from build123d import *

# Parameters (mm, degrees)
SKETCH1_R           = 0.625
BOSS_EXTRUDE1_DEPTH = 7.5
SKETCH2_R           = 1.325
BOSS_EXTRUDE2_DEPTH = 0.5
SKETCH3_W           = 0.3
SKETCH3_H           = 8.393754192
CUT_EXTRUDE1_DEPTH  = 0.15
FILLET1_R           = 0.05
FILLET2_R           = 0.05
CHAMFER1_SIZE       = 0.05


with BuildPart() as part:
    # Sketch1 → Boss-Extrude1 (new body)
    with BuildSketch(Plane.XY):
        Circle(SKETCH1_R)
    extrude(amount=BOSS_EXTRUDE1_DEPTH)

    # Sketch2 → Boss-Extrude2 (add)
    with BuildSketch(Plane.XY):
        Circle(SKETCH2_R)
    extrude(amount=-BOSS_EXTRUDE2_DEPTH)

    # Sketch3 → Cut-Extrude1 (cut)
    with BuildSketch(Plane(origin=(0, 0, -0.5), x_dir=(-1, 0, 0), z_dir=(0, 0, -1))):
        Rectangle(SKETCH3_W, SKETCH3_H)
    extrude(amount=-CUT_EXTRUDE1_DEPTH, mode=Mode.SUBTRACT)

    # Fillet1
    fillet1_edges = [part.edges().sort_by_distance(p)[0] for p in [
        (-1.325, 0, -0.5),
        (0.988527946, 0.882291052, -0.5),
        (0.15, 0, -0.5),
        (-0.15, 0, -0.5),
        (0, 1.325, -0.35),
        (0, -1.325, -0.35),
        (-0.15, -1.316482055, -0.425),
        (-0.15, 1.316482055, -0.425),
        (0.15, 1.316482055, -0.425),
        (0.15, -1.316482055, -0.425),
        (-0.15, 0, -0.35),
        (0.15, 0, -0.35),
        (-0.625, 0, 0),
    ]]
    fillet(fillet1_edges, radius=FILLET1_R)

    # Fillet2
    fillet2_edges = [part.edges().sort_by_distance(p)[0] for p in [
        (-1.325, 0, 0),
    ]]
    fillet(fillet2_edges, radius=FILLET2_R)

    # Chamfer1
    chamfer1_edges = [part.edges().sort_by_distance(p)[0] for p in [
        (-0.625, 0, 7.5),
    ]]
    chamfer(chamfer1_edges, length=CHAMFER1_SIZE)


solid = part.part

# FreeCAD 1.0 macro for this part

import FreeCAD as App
import Part
import Sketcher

V = App.Vector


def edges_at(feature, points):
    """Names of the edges that pass closest to the given points."""
    edges = feature.Shape.Edges
    near = lambda p: min(range(len(edges)), key=lambda i: edges[i].distToShape(Part.Vertex(*p))[0])
    return sorted({f"Edge{near(p) + 1}" for p in points})


def add_polygon(sketch, points):
    """Adds a closed chain of lines whose ends are joined by coincident constraints."""
    first, n = sketch.GeometryCount, len(points)
    for a, b in zip(points, points[1:] + points[:1]):
        sketch.addGeometry(Part.LineSegment(App.Vector(*a, 0), App.Vector(*b, 0)), False)
    for i in range(n):
        sketch.addConstraint(Sketcher.Constraint("Coincident", first + i, 2, first + (i + 1) % n, 1))

doc = App.newDocument("Part")
params = doc.addObject("Spreadsheet::Sheet", "Params")
for row, (alias, value) in enumerate([
    ("sketch1_diameter", "1.25 mm"),
    ("pad1_length", "7.5 mm"),
    ("sketch2_diameter", "2.65 mm"),
    ("pad2_length", "0.5 mm"),
    ("sketch3_width", "0.3 mm"),
    ("pocket1_length", "0.15 mm"),
    ("fillet_radius", "0.05 mm"),
    ("fillet2_radius", "0.05 mm"),
    ("chamfer_size", "0.05 mm"),
], start=1):
    params.set(f"A{row}", alias)
    params.set(f"B{row}", "=" + value)
    params.setAlias(f"B{row}", alias)

body = doc.addObject("PartDesign::Body", "Body")

# Sketch on XY plane
sketch1 = body.newObject("Sketcher::SketchObject", "Sketch")
sketch1.AttachmentSupport = (doc.getObject("XY_Plane"), [""])
sketch1.MapMode = "FlatFace"
sketch1.addGeometry(Part.Circle(V(0, 0, 0), V(0, 0, 1), 0.625), False)
sketch1.addConstraint([
    Sketcher.Constraint("Coincident", 0, 3, -1, 1),
    Sketcher.Constraint("Diameter", 0, 1.25),
])
sketch1.setExpression("Constraints[1]", "Params.sketch1_diameter")
pad1 = body.newObject("PartDesign::Pad", "Pad")
pad1.Profile = sketch1
pad1.setExpression("Length", "Params.pad1_length")

# Sketch on XY plane
sketch2 = body.newObject("Sketcher::SketchObject", "Sketch001")
sketch2.AttachmentSupport = (doc.getObject("XY_Plane"), [""])
sketch2.MapMode = "FlatFace"
sketch2.addGeometry(Part.Circle(V(0, 0, 0), V(0, 0, 1), 1.325), False)
sketch2.addConstraint([
    Sketcher.Constraint("Coincident", 0, 3, -1, 1),
    Sketcher.Constraint("Diameter", 0, 2.65),
])
sketch2.setExpression("Constraints[1]", "Params.sketch2_diameter")
pad2 = body.newObject("PartDesign::Pad", "Pad001")
pad2.Profile = sketch2
pad2.setExpression("Length", "Params.pad2_length")
pad2.Reversed = True

# Sketch on XY plane
sketch3 = body.newObject("Sketcher::SketchObject", "Sketch002")
sketch3.AttachmentSupport = (doc.getObject("XY_Plane"), [""])
sketch3.MapMode = "FlatFace"
sketch3.AttachmentOffset = App.Placement(V(0, 0, -0.5), App.Rotation())
add_polygon(sketch3, [(0.15, 4.196877), (0.15, -4.196877), (-0.15, -4.196877), (-0.15, 4.196877)])  # lines 0-3
sketch3.addConstraint([
    Sketcher.Constraint("Vertical", 0),
    Sketcher.Constraint("Horizontal", 1),
    Sketcher.Constraint("Vertical", 2),
    Sketcher.Constraint("Horizontal", 3),
    Sketcher.Constraint("Symmetric", 0, 2, 2, 2, -1, 1),
    Sketcher.Constraint("DistanceX", 1, 2, 1, 1, 0.3),
    Sketcher.Constraint("DistanceY", 0, 2, 0, 1, 8.393754),
])
sketch3.setExpression("Constraints[9]", "Params.sketch3_width")
pocket1 = body.newObject("PartDesign::Pocket", "Pocket")
pocket1.Profile = sketch3
pocket1.setExpression("Length", "Params.pocket1_length")
pocket1.Reversed = True
doc.recompute()

fillet = body.newObject("PartDesign::Fillet", "Fillet")
fillet.Base = (pocket1, edges_at(pocket1, [
    (-1.325, 0, -0.5),
    (0.989, 0.882, -0.5),
    (0.15, 0, -0.5),
    (-0.15, 0, -0.5),
    (0, 1.325, -0.35),
    (0, -1.325, -0.35),
    (-0.15, -1.316, -0.425),
    (-0.15, 1.316, -0.425),
    (0.15, 1.316, -0.425),
    (0.15, -1.316, -0.425),
    (-0.15, 0, -0.35),
    (0.15, 0, -0.35),
    (-0.625, 0, 0),
]))
fillet.setExpression("Radius", "Params.fillet_radius")
doc.recompute()

fillet2 = body.newObject("PartDesign::Fillet", "Fillet001")
fillet2.Base = (fillet, edges_at(fillet, [(-1.325, 0, 0)]))
fillet2.setExpression("Radius", "Params.fillet2_radius")
doc.recompute()

chamfer = body.newObject("PartDesign::Chamfer", "Chamfer")
chamfer.Base = (fillet2, edges_at(fillet2, [(-0.625, 0, 7.5)]))
chamfer.setExpression("Size", "Params.chamfer_size")

doc.recompute()
